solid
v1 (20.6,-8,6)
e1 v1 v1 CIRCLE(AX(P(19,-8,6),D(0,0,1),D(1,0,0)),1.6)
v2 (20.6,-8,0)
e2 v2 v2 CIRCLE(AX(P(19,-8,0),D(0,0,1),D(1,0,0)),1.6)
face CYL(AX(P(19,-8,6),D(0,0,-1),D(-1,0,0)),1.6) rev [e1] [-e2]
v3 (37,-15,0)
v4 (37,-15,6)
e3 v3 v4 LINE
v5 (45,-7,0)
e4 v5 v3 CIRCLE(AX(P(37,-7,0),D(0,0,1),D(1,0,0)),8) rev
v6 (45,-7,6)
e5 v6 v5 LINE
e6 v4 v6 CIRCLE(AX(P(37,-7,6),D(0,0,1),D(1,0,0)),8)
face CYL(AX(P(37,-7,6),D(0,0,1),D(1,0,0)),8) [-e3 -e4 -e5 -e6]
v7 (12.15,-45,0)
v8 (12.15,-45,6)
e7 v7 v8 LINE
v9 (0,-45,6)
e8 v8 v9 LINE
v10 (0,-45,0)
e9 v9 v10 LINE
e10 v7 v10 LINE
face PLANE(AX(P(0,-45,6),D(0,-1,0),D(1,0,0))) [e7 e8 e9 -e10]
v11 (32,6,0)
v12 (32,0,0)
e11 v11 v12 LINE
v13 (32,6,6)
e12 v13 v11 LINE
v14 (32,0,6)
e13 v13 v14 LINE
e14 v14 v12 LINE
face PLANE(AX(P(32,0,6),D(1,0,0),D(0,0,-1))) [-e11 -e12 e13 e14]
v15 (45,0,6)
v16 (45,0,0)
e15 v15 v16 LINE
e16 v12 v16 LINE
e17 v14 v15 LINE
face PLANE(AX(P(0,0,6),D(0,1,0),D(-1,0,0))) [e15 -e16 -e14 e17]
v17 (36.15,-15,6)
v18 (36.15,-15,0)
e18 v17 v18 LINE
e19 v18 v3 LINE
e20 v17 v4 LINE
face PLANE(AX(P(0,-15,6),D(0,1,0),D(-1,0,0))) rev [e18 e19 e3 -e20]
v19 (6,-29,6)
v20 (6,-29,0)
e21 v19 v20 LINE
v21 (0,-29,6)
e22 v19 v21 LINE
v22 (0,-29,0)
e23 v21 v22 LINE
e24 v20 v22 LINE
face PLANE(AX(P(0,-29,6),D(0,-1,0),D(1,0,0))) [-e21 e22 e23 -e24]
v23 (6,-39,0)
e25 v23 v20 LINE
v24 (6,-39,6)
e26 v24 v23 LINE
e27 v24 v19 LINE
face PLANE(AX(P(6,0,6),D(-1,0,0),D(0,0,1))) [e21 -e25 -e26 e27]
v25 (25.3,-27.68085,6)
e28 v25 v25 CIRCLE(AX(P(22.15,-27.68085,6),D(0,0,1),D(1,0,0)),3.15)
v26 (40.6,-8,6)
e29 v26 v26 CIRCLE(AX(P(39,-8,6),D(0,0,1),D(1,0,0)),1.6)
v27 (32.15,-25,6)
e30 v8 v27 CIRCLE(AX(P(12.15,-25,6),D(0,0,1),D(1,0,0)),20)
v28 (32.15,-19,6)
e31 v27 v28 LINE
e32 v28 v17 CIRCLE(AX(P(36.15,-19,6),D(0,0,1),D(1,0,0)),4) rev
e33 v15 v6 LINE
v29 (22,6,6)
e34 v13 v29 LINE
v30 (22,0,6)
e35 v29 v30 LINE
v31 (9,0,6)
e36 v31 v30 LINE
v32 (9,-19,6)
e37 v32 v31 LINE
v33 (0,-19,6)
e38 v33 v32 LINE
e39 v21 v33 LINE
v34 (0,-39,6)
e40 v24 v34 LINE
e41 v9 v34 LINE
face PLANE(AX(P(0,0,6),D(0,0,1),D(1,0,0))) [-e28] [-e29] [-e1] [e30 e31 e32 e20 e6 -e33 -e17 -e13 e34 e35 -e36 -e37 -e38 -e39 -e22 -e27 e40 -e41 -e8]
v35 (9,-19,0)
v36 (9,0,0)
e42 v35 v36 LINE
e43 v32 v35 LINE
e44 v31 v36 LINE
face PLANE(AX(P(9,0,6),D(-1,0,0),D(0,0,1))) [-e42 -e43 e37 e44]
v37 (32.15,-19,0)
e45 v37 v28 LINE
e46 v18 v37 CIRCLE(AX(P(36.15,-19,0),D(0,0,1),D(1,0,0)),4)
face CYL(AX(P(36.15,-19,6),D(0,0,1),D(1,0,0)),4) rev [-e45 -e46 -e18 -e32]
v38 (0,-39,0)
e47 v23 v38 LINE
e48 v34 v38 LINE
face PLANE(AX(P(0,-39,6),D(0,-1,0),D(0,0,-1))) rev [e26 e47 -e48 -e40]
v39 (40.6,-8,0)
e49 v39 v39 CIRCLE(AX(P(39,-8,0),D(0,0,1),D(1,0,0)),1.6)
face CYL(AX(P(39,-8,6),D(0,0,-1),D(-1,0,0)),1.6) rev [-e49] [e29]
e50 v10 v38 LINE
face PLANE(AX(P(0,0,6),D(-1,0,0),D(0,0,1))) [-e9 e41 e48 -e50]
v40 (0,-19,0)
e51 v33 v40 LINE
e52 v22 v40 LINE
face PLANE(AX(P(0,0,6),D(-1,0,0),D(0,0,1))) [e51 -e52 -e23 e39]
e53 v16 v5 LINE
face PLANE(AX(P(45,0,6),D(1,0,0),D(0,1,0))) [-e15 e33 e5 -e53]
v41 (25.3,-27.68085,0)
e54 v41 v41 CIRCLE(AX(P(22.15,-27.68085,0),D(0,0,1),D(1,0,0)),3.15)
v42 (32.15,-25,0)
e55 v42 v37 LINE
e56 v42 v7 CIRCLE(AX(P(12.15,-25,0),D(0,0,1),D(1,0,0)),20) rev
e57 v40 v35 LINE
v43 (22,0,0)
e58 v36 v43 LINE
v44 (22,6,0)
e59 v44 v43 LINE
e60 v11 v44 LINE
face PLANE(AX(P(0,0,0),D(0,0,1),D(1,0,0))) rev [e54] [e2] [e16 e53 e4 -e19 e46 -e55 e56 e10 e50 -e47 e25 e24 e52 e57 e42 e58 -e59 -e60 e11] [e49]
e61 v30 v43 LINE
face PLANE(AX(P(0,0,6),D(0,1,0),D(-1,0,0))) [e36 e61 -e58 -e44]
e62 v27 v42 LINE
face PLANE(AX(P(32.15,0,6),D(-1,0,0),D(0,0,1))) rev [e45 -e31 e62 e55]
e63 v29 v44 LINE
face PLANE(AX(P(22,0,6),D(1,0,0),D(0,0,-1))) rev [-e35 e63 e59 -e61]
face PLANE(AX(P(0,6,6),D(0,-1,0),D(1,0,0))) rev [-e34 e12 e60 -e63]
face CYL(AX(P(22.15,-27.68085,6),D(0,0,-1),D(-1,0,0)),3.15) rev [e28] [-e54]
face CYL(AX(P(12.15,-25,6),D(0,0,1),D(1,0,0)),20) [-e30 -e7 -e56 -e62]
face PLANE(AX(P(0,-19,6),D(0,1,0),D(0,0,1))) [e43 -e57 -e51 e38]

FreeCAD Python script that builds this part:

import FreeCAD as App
import Part
import Sketcher

V = App.Vector


def edges_at(feature, points):
    """Names of the edges that pass closest to the given points."""
    edges = feature.Shape.Edges
    near = lambda p: min(range(len(edges)), key=lambda i: edges[i].distToShape(Part.Vertex(*p))[0])
    return sorted({f"Edge{near(p) + 1}" for p in points})

doc = App.newDocument("Part")
body = doc.addObject("PartDesign::Body", "Body")

# Sketch on XY plane
sketch1 = body.newObject("Sketcher::SketchObject", "Sketch")
sketch1.AttachmentSupport = (doc.getObject("XY_Plane"), [""])
sketch1.MapMode = "FlatFace"
sketch1.addGeometry(Part.LineSegment(V(22, 0, 0), V(9, 0, 0)), False)
sketch1.addGeometry(Part.LineSegment(V(9, 0, 0), V(9, -19, 0)), False)
sketch1.addGeometry(Part.LineSegment(V(9, -19, 0), V(0, -19, 0)), False)
sketch1.addGeometry(Part.LineSegment(V(0, -19, 0), V(0, -29, 0)), False)
sketch1.addGeometry(Part.LineSegment(V(0, -29, 0), V(6, -29, 0)), False)
sketch1.addGeometry(Part.LineSegment(V(6, -29, 0), V(6, -39, 0)), False)
sketch1.addGeometry(Part.LineSegment(V(6, -39, 0), V(0, -39, 0)), False)
sketch1.addGeometry(Part.LineSegment(V(0, -39, 0), V(0, -45, 0)), False)
sketch1.addGeometry(Part.LineSegment(V(0, -45, 0), V(32.15, -45, 0)), False)
sketch1.addGeometry(Part.LineSegment(V(32.15, -45, 0), V(32.15, -15, 0)), False)
sketch1.addGeometry(Part.LineSegment(V(32.15, -15, 0), V(45, -15, 0)), False)
sketch1.addGeometry(Part.LineSegment(V(45, -15, 0), V(45, 0, 0)), False)
sketch1.addGeometry(Part.LineSegment(V(45, 0, 0), V(32, 0, 0)), False)
sketch1.addGeometry(Part.LineSegment(V(32, 0, 0), V(32, 6, 0)), False)
sketch1.addGeometry(Part.LineSegment(V(32, 6, 0), V(22, 6, 0)), False)
sketch1.addGeometry(Part.LineSegment(V(22, 6, 0), V(22, 0, 0)), False)
sketch1.addGeometry(Part.Circle(V(22.15, -27.68085, 0), V(0, 0, 1), 3.15), False)
sketch1.addGeometry(Part.Circle(V(19, -8, 0), V(0, 0, 1), 1.6), False)
sketch1.addGeometry(Part.Circle(V(39, -8, 0), V(0, 0, 1), 1.6), False)
sketch1.addConstraint(Sketcher.Constraint("Coincident", 0, 2, 1, 1))
sketch1.addConstraint(Sketcher.Constraint("Coincident", 1, 2, 2, 1))
sketch1.addConstraint(Sketcher.Constraint("Coincident", 2, 2, 3, 1))
sketch1.addConstraint(Sketcher.Constraint("Coincident", 3, 2, 4, 1))
sketch1.addConstraint(Sketcher.Constraint("Coincident", 4, 2, 5, 1))
sketch1.addConstraint(Sketcher.Constraint("Coincident", 5, 2, 6, 1))
sketch1.addConstraint(Sketcher.Constraint("Coincident", 6, 2, 7, 1))
sketch1.addConstraint(Sketcher.Constraint("Coincident", 7, 2, 8, 1))
sketch1.addConstraint(Sketcher.Constraint("Coincident", 8, 2, 9, 1))
sketch1.addConstraint(Sketcher.Constraint("Coincident", 9, 2, 10, 1))
sketch1.addConstraint(Sketcher.Constraint("Coincident", 10, 2, 11, 1))
sketch1.addConstraint(Sketcher.Constraint("Coincident", 11, 2, 12, 1))
sketch1.addConstraint(Sketcher.Constraint("Coincident", 12, 2, 13, 1))
sketch1.addConstraint(Sketcher.Constraint("Coincident", 13, 2, 14, 1))
sketch1.addConstraint(Sketcher.Constraint("Coincident", 14, 2, 15, 1))
sketch1.addConstraint(Sketcher.Constraint("Coincident", 15, 2, 0, 1))
sketch1.addConstraint(Sketcher.Constraint("Horizontal", 0))
sketch1.addConstraint(Sketcher.Constraint("Vertical", 1))
sketch1.addConstraint(Sketcher.Constraint("Horizontal", 2))
sketch1.addConstraint(Sketcher.Constraint("Vertical", 3))
sketch1.addConstraint(Sketcher.Constraint("Horizontal", 4))
sketch1.addConstraint(Sketcher.Constraint("Vertical", 5))
sketch1.addConstraint(Sketcher.Constraint("Horizontal", 6))
sketch1.addConstraint(Sketcher.Constraint("Vertical", 7))
sketch1.addConstraint(Sketcher.Constraint("Horizontal", 8))
sketch1.addConstraint(Sketcher.Constraint("Vertical", 9))
sketch1.addConstraint(Sketcher.Constraint("Horizontal", 10))
sketch1.addConstraint(Sketcher.Constraint("Vertical", 11))
sketch1.addConstraint(Sketcher.Constraint("Horizontal", 12))
sketch1.addConstraint(Sketcher.Constraint("Vertical", 13))
sketch1.addConstraint(Sketcher.Constraint("Horizontal", 14))
sketch1.addConstraint(Sketcher.Constraint("Vertical", 15))
sketch1.addConstraint(Sketcher.Constraint("Equal", 17, 18))
sketch1.addConstraint(Sketcher.Constraint("PointOnObject", 0, 2, -1))
sketch1.addConstraint(Sketcher.Constraint("PointOnObject", 2, 2, -2))
sketch1.addConstraint(Sketcher.Constraint("PointOnObject", 6, 2, -2))
sketch1.addConstraint(Sketcher.Constraint("PointOnObject", 11, 2, -1))
sketch1.addConstraint(Sketcher.Constraint("Horizontal", 17, 3, 18, 3))
sketch1.addConstraint(Sketcher.Constraint("Equal", 0, 12))
sketch1.addConstraint(Sketcher.Constraint("Equal", 14, 3))
sketch1.addConstraint(Sketcher.Constraint("Equal", 3, 5))
sketch1.addConstraint(Sketcher.Constraint("Equal", 6, 7))
sketch1.addConstraint(Sketcher.Constraint("Equal", 7, 13))
sketch1.addConstraint(Sketcher.Constraint("Diameter", 16, 6.3))
sketch1.addConstraint(Sketcher.Constraint("Diameter", 17, 3.2))
sketch1.addConstraint(Sketcher.Constraint("DistanceX", 0, 2, 0, 1, 13.0))
sketch1.addConstraint(Sketcher.Constraint("DistanceX", 2, 2, 2, 1, 9.0))
sketch1.addConstraint(Sketcher.Constraint("DistanceX", 4, 1, 4, 2, 6.0))
sketch1.addConstraint(Sketcher.Constraint("DistanceX", 14, 2, 14, 1, 10.0))
sketch1.addConstraint(Sketcher.Constraint("DistanceY", 1, 2, 1, 1, 19.0))
sketch1.addConstraint(Sketcher.Constraint("DistanceY", 9, 1, 9, 2, 30.0))
sketch1.addConstraint(Sketcher.Constraint("DistanceX", -1, 1, 17, 3, 19.0))
sketch1.addConstraint(Sketcher.Constraint("DistanceY", 17, 3, -1, 1, 8.0))
sketch1.addConstraint(Sketcher.Constraint("DistanceX", -1, 1, 18, 3, 39.0))
sketch1.addConstraint(Sketcher.Constraint("DistanceX", 16, 3, 8, 2, 10.0))
sketch1.addConstraint(Sketcher.Constraint("DistanceX", 8, 1, 8, 2, 32.15))
sketch1.addConstraint(Sketcher.Constraint("DistanceY", 16, 3, -1, 1, 27.68085))
pad1 = body.newObject("PartDesign::Pad", "Pad")
pad1.Profile = sketch1
pad1.Length = 6
doc.recompute()

fillet = body.newObject("PartDesign::Fillet", "Fillet")
fillet.Base = (pad1, edges_at(pad1, [(45, -15, 3)]))
fillet.Radius = 8
doc.recompute()

fillet2 = body.newObject("PartDesign::Fillet", "Fillet001")
fillet2.Base = (fillet, edges_at(fillet, [(32.15, -15, 3)]))
fillet2.Radius = 4
doc.recompute()

fillet3 = body.newObject("PartDesign::Fillet", "Fillet002")
fillet3.Base = (fillet2, edges_at(fillet2, [(32.15, -45, 3)]))
fillet3.Radius = 20

doc.recompute()
